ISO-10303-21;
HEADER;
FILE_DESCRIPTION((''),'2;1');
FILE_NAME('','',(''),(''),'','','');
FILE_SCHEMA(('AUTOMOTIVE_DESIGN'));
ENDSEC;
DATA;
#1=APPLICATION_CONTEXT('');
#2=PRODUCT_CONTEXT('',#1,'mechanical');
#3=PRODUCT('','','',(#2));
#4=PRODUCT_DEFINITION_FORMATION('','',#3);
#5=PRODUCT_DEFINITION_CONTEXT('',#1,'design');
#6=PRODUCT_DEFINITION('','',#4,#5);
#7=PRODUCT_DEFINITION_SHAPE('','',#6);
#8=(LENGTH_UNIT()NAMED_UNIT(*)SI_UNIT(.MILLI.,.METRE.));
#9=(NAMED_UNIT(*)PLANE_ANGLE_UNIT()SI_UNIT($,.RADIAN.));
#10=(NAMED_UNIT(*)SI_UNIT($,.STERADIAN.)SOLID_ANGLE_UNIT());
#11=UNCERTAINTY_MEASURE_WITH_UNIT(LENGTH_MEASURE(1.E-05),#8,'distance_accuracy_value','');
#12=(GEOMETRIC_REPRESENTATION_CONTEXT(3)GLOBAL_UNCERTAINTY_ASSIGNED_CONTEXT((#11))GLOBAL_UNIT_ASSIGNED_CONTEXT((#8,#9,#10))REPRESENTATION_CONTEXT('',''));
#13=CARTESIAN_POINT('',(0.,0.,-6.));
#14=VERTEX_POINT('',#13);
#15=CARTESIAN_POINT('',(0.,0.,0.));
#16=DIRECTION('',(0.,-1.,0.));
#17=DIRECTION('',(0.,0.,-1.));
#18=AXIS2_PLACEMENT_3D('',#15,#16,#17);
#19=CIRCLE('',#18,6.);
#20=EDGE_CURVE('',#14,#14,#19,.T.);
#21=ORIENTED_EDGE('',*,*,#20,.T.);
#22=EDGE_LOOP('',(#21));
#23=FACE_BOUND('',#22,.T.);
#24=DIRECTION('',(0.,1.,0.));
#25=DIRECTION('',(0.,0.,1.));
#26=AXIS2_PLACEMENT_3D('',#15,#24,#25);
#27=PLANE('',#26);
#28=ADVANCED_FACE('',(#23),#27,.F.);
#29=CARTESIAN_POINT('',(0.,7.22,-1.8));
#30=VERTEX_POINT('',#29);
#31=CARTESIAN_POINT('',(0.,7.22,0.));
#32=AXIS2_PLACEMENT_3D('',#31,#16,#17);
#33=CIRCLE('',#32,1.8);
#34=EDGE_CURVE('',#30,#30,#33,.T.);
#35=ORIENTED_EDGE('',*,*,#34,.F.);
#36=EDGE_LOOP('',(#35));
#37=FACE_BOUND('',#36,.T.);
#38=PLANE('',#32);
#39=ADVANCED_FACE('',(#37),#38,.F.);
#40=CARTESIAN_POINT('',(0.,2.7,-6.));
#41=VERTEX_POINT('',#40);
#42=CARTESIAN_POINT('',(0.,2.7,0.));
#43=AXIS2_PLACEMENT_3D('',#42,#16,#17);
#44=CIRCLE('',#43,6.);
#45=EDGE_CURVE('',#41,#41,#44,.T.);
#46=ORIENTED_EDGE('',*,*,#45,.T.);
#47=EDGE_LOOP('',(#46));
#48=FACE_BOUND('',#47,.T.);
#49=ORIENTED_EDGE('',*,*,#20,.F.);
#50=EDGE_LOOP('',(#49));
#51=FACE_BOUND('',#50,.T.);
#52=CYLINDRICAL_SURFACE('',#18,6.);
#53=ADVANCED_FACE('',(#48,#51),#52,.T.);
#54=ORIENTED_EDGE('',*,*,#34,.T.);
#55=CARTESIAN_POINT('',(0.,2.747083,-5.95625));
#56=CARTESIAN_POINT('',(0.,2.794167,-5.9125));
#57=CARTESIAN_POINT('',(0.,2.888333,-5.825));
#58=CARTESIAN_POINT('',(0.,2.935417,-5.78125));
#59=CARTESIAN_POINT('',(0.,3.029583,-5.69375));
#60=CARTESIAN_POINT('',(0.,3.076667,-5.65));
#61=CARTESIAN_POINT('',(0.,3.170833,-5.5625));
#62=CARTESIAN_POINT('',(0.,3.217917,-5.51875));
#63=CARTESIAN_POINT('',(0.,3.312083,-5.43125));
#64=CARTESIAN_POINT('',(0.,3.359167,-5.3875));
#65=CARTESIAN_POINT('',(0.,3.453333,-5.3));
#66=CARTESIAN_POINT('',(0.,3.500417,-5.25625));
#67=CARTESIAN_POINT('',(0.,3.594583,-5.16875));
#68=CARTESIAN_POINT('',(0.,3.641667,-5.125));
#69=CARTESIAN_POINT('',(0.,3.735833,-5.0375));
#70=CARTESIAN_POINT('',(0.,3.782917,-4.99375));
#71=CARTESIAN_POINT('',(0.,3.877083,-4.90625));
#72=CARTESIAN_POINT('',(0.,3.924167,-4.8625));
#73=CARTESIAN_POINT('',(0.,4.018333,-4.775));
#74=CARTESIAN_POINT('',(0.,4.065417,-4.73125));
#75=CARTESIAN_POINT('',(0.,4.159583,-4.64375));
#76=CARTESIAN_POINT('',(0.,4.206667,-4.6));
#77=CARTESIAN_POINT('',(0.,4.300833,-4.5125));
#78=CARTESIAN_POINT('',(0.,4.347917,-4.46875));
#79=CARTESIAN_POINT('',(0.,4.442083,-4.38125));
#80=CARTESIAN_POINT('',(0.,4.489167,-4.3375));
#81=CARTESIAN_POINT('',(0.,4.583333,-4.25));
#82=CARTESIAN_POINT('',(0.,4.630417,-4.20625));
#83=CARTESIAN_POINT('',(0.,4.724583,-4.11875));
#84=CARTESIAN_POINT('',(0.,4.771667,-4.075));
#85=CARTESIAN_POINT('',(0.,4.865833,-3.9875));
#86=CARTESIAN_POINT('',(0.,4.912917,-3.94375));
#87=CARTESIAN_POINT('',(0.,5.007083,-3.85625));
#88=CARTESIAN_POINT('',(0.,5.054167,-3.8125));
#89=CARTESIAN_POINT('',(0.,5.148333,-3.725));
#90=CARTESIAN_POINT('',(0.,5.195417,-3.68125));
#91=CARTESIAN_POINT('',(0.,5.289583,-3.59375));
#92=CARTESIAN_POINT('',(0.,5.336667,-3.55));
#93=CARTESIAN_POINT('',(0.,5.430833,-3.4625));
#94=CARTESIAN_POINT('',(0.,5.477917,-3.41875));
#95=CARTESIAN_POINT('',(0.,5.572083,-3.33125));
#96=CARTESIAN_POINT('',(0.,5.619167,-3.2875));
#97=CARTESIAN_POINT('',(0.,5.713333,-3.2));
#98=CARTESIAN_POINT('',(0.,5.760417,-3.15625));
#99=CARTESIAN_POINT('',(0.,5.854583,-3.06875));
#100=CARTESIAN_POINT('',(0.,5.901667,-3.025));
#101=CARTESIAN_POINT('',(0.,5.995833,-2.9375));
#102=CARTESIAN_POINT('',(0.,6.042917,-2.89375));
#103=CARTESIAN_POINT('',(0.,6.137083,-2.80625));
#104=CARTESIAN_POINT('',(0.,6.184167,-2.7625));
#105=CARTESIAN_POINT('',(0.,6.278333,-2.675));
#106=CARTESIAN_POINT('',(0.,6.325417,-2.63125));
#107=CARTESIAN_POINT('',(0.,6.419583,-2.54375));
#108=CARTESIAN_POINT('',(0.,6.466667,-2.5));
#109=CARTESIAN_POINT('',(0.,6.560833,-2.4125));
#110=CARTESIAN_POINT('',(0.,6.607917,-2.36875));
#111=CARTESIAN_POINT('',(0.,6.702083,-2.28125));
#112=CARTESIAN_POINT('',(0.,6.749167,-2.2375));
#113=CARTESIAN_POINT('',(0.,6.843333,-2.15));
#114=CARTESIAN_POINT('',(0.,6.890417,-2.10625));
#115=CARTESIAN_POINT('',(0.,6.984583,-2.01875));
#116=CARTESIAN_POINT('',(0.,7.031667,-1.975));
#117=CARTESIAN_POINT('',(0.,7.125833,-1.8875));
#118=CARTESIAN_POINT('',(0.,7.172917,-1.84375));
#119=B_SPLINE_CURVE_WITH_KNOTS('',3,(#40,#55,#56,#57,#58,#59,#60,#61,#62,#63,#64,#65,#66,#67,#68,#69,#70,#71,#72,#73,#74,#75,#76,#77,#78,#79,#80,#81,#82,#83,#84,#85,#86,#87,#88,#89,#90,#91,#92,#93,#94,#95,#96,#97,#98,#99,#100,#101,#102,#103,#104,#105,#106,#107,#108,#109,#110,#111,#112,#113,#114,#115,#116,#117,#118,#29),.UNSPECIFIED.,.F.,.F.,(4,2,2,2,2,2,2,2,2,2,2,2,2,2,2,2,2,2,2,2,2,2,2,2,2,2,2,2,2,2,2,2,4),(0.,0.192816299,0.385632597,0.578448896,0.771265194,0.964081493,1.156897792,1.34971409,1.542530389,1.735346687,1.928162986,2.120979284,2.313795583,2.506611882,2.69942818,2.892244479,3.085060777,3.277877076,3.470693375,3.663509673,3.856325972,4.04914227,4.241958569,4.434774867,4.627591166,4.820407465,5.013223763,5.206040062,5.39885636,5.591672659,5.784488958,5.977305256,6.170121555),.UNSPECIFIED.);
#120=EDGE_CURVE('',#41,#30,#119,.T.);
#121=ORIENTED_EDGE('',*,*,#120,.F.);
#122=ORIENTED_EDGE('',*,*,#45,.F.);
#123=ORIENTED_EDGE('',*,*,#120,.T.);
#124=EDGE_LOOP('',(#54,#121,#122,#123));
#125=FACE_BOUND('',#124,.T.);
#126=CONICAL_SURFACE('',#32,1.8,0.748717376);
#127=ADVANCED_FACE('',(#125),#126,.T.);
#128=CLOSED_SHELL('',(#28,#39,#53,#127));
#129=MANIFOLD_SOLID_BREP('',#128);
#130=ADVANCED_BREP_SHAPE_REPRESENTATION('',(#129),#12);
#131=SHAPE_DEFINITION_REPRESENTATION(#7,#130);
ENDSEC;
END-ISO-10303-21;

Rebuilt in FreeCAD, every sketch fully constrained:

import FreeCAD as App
import Part
import Sketcher

V = App.Vector
Q = App.Units.Quantity

doc = App.newDocument("Part")
body = doc.addObject("PartDesign::Body", "Body")

# Sketch on XY plane
sketch1 = body.newObject("Sketcher::SketchObject", "Sketch")
sketch1.AttachmentSupport = (doc.getObject("XY_Plane"), [""])
sketch1.MapMode = "FlatFace"
sketch1.addGeometry([
    Part.LineSegment(V(-6, 2.7, 0), V(-6, 0, 0)),  # 0
    Part.LineSegment(V(-6, 0, 0), V(0, 0, 0)),  # 1
    Part.LineSegment(V(0, 0, 0), V(0, 7.22, 0)),  # 2
    Part.LineSegment(V(0, 7.22, 0), V(-1.8, 7.22, 0)),  # 3
    Part.LineSegment(V(-1.8, 7.22, 0), V(-6, 2.7, 0)),  # 4
], False)
sketch1.addConstraint([
    Sketcher.Constraint("Coincident", 0, 2, 1, 1),
    Sketcher.Constraint("Coincident", 1, 2, 2, 1),
    Sketcher.Constraint("Coincident", 2, 2, 3, 1),
    Sketcher.Constraint("Coincident", 3, 2, 4, 1),
    Sketcher.Constraint("Coincident", 4, 2, 0, 1),
    Sketcher.Constraint("Vertical", 0),
    Sketcher.Constraint("Horizontal", 1),
    Sketcher.Constraint("Vertical", 2),
    Sketcher.Constraint("Horizontal", 3),
    Sketcher.Constraint("Coincident", 1, 2, -1, 1),
    Sketcher.Constraint("DistanceX", 1, 1, 1, 2, Q("6 mm")),
    Sketcher.Constraint("DistanceX", 3, 2, 3, 1, Q("1.8 mm")),
    Sketcher.Constraint("DistanceY", 0, 2, 0, 1, Q("2.7 mm")),
    Sketcher.Constraint("DistanceY", 2, 1, 2, 2, Q("7.22 mm")),
])
revolution = body.newObject("PartDesign::Revolution", "Revolution")
revolution.Profile = sketch1
revolution.ReferenceAxis = (sketch1, ["V_Axis"])
revolution.Angle = 360

doc.recompute()
